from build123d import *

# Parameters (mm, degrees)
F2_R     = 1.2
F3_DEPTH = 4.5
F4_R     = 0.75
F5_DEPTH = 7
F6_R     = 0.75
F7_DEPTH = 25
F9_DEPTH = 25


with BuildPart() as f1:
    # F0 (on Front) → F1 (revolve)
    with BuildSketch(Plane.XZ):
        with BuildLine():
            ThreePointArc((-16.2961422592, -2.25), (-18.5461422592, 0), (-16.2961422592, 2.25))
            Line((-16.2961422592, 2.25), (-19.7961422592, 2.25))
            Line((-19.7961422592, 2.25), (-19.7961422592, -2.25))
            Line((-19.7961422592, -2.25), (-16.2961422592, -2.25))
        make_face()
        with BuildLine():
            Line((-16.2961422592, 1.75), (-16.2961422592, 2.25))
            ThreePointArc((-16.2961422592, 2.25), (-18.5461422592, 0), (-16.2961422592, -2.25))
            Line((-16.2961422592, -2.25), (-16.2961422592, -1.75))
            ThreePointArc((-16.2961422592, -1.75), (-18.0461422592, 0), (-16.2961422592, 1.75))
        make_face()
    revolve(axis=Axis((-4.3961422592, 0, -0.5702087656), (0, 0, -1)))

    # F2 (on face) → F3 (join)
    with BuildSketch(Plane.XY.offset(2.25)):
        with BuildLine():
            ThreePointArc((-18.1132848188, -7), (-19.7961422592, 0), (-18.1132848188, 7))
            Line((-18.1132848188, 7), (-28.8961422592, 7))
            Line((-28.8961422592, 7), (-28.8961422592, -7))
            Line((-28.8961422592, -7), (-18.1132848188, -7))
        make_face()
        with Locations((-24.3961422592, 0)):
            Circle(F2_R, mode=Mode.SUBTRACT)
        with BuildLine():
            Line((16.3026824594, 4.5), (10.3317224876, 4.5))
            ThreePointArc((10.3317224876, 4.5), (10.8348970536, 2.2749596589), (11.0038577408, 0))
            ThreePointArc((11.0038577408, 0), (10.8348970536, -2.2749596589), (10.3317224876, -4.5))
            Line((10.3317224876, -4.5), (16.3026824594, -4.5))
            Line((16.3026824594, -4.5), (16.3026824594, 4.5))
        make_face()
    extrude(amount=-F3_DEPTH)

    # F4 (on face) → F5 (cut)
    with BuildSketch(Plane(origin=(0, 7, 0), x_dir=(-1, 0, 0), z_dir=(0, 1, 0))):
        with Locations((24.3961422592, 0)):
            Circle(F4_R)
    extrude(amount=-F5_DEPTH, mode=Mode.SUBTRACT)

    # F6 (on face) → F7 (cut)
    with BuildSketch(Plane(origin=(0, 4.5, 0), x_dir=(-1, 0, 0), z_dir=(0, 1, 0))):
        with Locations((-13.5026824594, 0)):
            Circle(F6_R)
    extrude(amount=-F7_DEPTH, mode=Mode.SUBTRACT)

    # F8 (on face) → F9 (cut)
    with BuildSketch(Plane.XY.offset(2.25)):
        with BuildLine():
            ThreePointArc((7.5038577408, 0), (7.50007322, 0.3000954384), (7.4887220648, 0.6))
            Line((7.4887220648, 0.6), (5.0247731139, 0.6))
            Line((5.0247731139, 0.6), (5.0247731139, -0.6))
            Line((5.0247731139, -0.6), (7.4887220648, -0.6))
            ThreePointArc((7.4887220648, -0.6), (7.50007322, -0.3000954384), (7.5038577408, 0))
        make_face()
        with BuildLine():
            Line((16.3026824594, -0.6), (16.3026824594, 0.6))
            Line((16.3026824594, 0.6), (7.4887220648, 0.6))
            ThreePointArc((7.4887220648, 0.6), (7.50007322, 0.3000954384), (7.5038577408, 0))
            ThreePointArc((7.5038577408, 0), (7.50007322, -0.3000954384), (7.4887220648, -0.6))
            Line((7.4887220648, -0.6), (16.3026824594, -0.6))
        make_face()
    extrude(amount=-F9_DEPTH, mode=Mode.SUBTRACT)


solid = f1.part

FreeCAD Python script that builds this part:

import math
import FreeCAD as App
import Part
import Sketcher
Q = App.Units.Quantity


def add_polygon(sketch, points):
    """Adds a closed chain of lines whose ends are joined by coincident constraints."""
    first, n = sketch.GeometryCount, len(points)
    for a, b in zip(points, points[1:] + points[:1]):
        sketch.addGeometry(Part.LineSegment(App.Vector(*a, 0), App.Vector(*b, 0)), False)
    for i in range(n):
        sketch.addConstraint(Sketcher.Constraint("Coincident", first + i, 2, first + (i + 1) % n, 1))

doc = App.newDocument("Part")
params = doc.addObject("Spreadsheet::Sheet", "Params")
for row, (alias, value) in enumerate([
    ("sketch1_radius", "1.75 mm"),
    ("sketch1_width", "3.5 mm"),
    ("sketch1_height", "4.5 mm"),
    ("revolution_angle", "360 deg"),
    ("sketch2_diameter", "2.4 mm"),
    ("sketch2_radius", "15.4 mm"),
    ("sketch2_height", "14 mm"),
    ("sketch2_height2", "9 mm"),
    ("pad1_length", "4.5 mm"),
    ("sketch3_diameter", "1.5 mm"),
    ("pocket1_length", "7 mm"),
    ("sketch4_diameter", "1.5 mm"),
    ("pocket2_length", "25 mm"),
    ("sketch5_height", "1.2 mm"),
    ("pocket3_length", "25 mm"),
], start=1):
    params.set(f"A{row}", alias)
    params.set(f"B{row}", "=" + value)
    params.setAlias(f"B{row}", alias)

body = doc.addObject("PartDesign::Body", "Body")

sketch1 = body.newObject("Sketcher::SketchObject", "Sketch")
sketch1.AttachmentSupport = (doc.getObject("XZ_Plane"), [""])
sketch1.MapMode = "FlatFace"
sketch1.addGeometry([
    Part.LineSegment(App.Vector(-16.3, 2.2, 0), App.Vector(-19.8, 2.2, 0)),
    Part.LineSegment(App.Vector(-19.8, 2.2, 0), App.Vector(-19.8, -2.2, 0)),
    Part.LineSegment(App.Vector(-19.8, -2.2, 0), App.Vector(-16.3, -2.2, 0)),
    Part.LineSegment(App.Vector(-16.3, -2.2, 0), App.Vector(-16.3, -1.8, 0)),
    Part.ArcOfCircle(Part.Circle(App.Vector(-16.3, 0, 0), App.Vector(0, 0, 1), 1.8), math.radians(90), math.radians(270)),
    Part.LineSegment(App.Vector(-16.3, 1.8, 0), App.Vector(-16.3, 2.2, 0)),
], False)
sketch1.addGeometry(Part.LineSegment(App.Vector(-4.4, 2.2, 0), App.Vector(-4.4, -2.2, 0)), True)
sketch1.addConstraint([
    Sketcher.Constraint("Coincident", 0, 2, 1, 1),
    Sketcher.Constraint("Coincident", 1, 2, 2, 1),
    Sketcher.Constraint("Coincident", 2, 2, 3, 1),
    Sketcher.Constraint("Coincident", 3, 2, 4, 2),
    Sketcher.Constraint("Coincident", 4, 1, 5, 1),
    Sketcher.Constraint("Coincident", 5, 2, 0, 1),
    Sketcher.Constraint("Horizontal", 0),
    Sketcher.Constraint("Vertical", 1),
    Sketcher.Constraint("Horizontal", 2),
    Sketcher.Constraint("Vertical", 3),
    Sketcher.Constraint("Vertical", 5),
    Sketcher.Constraint("Vertical", 6),
    Sketcher.Constraint("Symmetric", 3, 2, 4, 1, -1),
    Sketcher.Constraint("Horizontal", 5, 2, 6, 1),
    Sketcher.Constraint("Horizontal", 2, 2, 6, 2),
    Sketcher.Constraint("Vertical", 4, 3, 2, 2),
    Sketcher.Constraint("Equal", 3, 5),
    Sketcher.Constraint("Radius", 4, Q("1.75 mm")),
    Sketcher.Constraint("DistanceX", 0, 2, 0, 1, Q("3.5 mm")),
    Sketcher.Constraint("DistanceY", 1, 2, 1, 1, Q("4.5 mm")),
    Sketcher.Constraint("DistanceX", 5, 2, 6, 1, Q("11.9 mm")),
    Sketcher.Constraint("DistanceX", 4, 3, -1, 1, Q("16.296142 mm")),
])
sketch1.setExpression("Constraints[17]", "Params.sketch1_radius")
sketch1.setExpression("Constraints[18]", "Params.sketch1_width")
sketch1.setExpression("Constraints[19]", "Params.sketch1_height")
revolution = body.newObject("PartDesign::Revolution", "Revolution")
revolution.Profile = sketch1
revolution.ReferenceAxis = (sketch1, ["Axis0"])
revolution.setExpression("Angle", "Params.revolution_angle")

sketch2 = body.newObject("Sketcher::SketchObject", "Sketch001")
sketch2.AttachmentSupport = (doc.getObject("XY_Plane"), [""])
sketch2.MapMode = "FlatFace"
sketch2.AttachmentOffset = App.Placement(App.Vector(0, 0, 2.25), App.Rotation())
sketch2.addGeometry([
    Part.ArcOfCircle(Part.Circle(App.Vector(-4.4, 0, 0), App.Vector(0, 0, 1), 15.4), math.radians(153), math.radians(207)),
    Part.LineSegment(App.Vector(-18.1, 7, 0), App.Vector(-28.9, 7, 0)),
    Part.LineSegment(App.Vector(-28.9, 7, 0), App.Vector(-28.9, -7, 0)),
    Part.LineSegment(App.Vector(-28.9, -7, 0), App.Vector(-18.1, -7, 0)),
    Part.Circle(App.Vector(-24.4, 0, 0), App.Vector(0, 0, 1), 1.2),
    Part.LineSegment(App.Vector(16.3, 4.5, 0), App.Vector(10.3, 4.5, 0)),
    Part.ArcOfCircle(Part.Circle(App.Vector(-4.4, 0, 0), App.Vector(0, 0, 1), 15.4), math.radians(0), math.radians(16.99)),
    Part.ArcOfCircle(Part.Circle(App.Vector(-4.4, 0, 0), App.Vector(0, 0, 1), 15.4), math.radians(-16.99), math.radians(0)),
    Part.LineSegment(App.Vector(10.3, -4.5, 0), App.Vector(16.3, -4.5, 0)),
    Part.LineSegment(App.Vector(16.3, -4.5, 0), App.Vector(16.3, 4.5, 0)),
], False)
sketch2.addConstraint([
    Sketcher.Constraint("Coincident", 0, 1, 1, 1),
    Sketcher.Constraint("Coincident", 1, 2, 2, 1),
    Sketcher.Constraint("Coincident", 2, 2, 3, 1),
    Sketcher.Constraint("Coincident", 3, 2, 0, 2),
    Sketcher.Constraint("Coincident", 5, 2, 6, 2),
    Sketcher.Constraint("Tangent", 6, 1, 7, 2),
    Sketcher.Constraint("Coincident", 7, 1, 8, 1),
    Sketcher.Constraint("Coincident", 8, 2, 9, 1),
    Sketcher.Constraint("Coincident", 9, 2, 5, 1),
    Sketcher.Constraint("Horizontal", 1),
    Sketcher.Constraint("Vertical", 2),
    Sketcher.Constraint("Horizontal", 3),
    Sketcher.Constraint("Horizontal", 5),
    Sketcher.Constraint("Horizontal", 8),
    Sketcher.Constraint("Vertical", 9),
    Sketcher.Constraint("Coincident", 6, 3, 0, 3),
    Sketcher.Constraint("Equal", 0, 6),
    Sketcher.Constraint("Equal", 6, 7),
    Sketcher.Constraint("Symmetric", 0, 1, 3, 2, -1),
    Sketcher.Constraint("PointOnObject", 4, 3, -1),
    Sketcher.Constraint("PointOnObject", 6, 1, -1),
    Sketcher.Constraint("Vertical", 5, 2, 7, 1),
    Sketcher.Constraint("Diameter", 4, Q("2.4 mm")),
    Sketcher.Constraint("Radius", 0, Q("15.4 mm")),
    Sketcher.Constraint("DistanceY", 2, 2, 2, 1, Q("14 mm")),
    Sketcher.Constraint("DistanceY", 9, 1, 9, 2, Q("9 mm")),
    Sketcher.Constraint("DistanceX", 4, 3, 0, 3, Q("20 mm")),
    Sketcher.Constraint("DistanceX", 1, 2, 4, 3, Q("4.5 mm")),
    Sketcher.Constraint("DistanceX", 5, 2, 5, 1, Q("5.97096 mm")),
    Sketcher.Constraint("DistanceX", 0, 3, -1, 1, Q("4.396142 mm")),
])
sketch2.setExpression("Constraints[22]", "Params.sketch2_diameter")
sketch2.setExpression("Constraints[23]", "Params.sketch2_radius")
sketch2.setExpression("Constraints[24]", "Params.sketch2_height")
sketch2.setExpression("Constraints[25]", "Params.sketch2_height2")
pad1 = body.newObject("PartDesign::Pad", "Pad")
pad1.Profile = sketch2
pad1.setExpression("Length", "Params.pad1_length")
pad1.Reversed = True

sketch3 = body.newObject("Sketcher::SketchObject", "Sketch002")
sketch3.AttachmentSupport = (doc.getObject("XZ_Plane"), [""])
sketch3.MapMode = "FlatFace"
sketch3.AttachmentOffset = App.Placement(App.Vector(0, 0, -7), App.Rotation())
sketch3.addGeometry(Part.Circle(App.Vector(-24.4, 0, 0), App.Vector(0, 0, 1), 0.8), False)
sketch3.addConstraint([
    Sketcher.Constraint("PointOnObject", 0, 3, -1),
    Sketcher.Constraint("Diameter", 0, Q("1.5 mm")),
    Sketcher.Constraint("DistanceX", 0, 3, -1, 1, Q("24.396142 mm")),
])
sketch3.setExpression("Constraints[1]", "Params.sketch3_diameter")
pocket1 = body.newObject("PartDesign::Pocket", "Pocket")
pocket1.Profile = sketch3
pocket1.setExpression("Length", "Params.pocket1_length")
pocket1.Reversed = True

sketch4 = body.newObject("Sketcher::SketchObject", "Sketch003")
sketch4.AttachmentSupport = (doc.getObject("XZ_Plane"), [""])
sketch4.MapMode = "FlatFace"
sketch4.AttachmentOffset = App.Placement(App.Vector(0, 0, -4.5), App.Rotation())
sketch4.addGeometry(Part.Circle(App.Vector(13.5, 0, 0), App.Vector(0, 0, 1), 0.8), False)
sketch4.addConstraint([
    Sketcher.Constraint("PointOnObject", 0, 3, -1),
    Sketcher.Constraint("Diameter", 0, Q("1.5 mm")),
    Sketcher.Constraint("DistanceX", -1, 1, 0, 3, Q("13.502682 mm")),
])
sketch4.setExpression("Constraints[1]", "Params.sketch4_diameter")
pocket2 = body.newObject("PartDesign::Pocket", "Pocket001")
pocket2.Profile = sketch4
pocket2.setExpression("Length", "Params.pocket2_length")
pocket2.Reversed = True

sketch5 = body.newObject("Sketcher::SketchObject", "Sketch004")
sketch5.AttachmentSupport = (doc.getObject("XY_Plane"), [""])
sketch5.MapMode = "FlatFace"
sketch5.AttachmentOffset = App.Placement(App.Vector(0, 0, 2.25), App.Rotation())
add_polygon(sketch5, [(5, 0.6), (5, -0.6), (16.3, -0.6), (16.3, 0.6)])
sketch5.addConstraint([
    Sketcher.Constraint("Vertical", 0),
    Sketcher.Constraint("Horizontal", 1),
    Sketcher.Constraint("Vertical", 2),
    Sketcher.Constraint("Horizontal", 3),
    Sketcher.Constraint("DistanceY", 0, 2, 0, 1, Q("1.2 mm")),
    Sketcher.Constraint("DistanceY", 0, 2, -1, 1, Q("0.6 mm")),
    Sketcher.Constraint("DistanceX", 1, 1, 1, 2, Q("11.277909 mm")),
    Sketcher.Constraint("DistanceX", -1, 1, 0, 2, Q("5.024773 mm")),
])
sketch5.setExpression("Constraints[8]", "Params.sketch5_height")
pocket3 = body.newObject("PartDesign::Pocket", "Pocket002")
pocket3.Profile = sketch5
pocket3.setExpression("Length", "Params.pocket3_length")

doc.recompute()
